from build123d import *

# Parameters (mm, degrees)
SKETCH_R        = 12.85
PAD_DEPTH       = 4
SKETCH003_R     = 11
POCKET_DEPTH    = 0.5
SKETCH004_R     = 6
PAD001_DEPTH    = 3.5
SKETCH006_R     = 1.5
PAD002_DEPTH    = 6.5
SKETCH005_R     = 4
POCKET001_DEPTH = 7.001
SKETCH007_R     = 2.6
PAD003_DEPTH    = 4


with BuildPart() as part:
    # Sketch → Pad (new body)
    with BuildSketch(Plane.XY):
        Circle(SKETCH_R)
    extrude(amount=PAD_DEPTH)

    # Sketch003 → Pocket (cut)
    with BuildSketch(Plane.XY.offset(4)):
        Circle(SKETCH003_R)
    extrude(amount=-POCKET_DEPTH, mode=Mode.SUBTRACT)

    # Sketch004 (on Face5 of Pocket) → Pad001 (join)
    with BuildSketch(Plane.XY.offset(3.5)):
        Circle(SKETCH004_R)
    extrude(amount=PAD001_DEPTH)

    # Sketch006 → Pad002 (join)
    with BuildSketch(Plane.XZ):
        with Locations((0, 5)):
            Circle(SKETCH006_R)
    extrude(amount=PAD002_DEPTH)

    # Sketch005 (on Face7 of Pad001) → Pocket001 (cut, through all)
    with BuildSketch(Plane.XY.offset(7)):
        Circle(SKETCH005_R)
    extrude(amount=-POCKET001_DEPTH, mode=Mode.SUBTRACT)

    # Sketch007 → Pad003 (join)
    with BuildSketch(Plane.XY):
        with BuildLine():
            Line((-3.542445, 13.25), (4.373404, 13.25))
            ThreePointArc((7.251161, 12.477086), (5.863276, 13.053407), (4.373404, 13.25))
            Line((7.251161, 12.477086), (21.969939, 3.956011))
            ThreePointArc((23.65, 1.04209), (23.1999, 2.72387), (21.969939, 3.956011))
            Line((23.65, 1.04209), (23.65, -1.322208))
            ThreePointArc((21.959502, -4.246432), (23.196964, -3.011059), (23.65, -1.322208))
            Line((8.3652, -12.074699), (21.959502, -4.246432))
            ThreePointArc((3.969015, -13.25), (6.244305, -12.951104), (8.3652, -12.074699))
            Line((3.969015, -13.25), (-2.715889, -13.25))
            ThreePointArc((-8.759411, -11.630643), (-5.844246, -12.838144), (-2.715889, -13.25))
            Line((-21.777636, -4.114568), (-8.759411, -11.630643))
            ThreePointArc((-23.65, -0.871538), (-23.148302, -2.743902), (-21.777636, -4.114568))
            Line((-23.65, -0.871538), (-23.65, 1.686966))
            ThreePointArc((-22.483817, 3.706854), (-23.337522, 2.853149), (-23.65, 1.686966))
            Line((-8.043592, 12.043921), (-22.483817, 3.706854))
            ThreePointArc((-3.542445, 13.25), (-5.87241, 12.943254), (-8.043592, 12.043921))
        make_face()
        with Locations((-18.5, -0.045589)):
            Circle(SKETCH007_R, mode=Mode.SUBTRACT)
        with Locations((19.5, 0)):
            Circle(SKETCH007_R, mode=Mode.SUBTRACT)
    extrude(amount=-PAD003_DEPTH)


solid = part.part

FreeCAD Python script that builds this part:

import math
import FreeCAD as App
import Part
import Sketcher

V = App.Vector
Q = App.Units.Quantity

doc = App.newDocument("Part")
body = doc.addObject("PartDesign::Body", "Body")

sketch1 = body.newObject("Sketcher::SketchObject", "Sketch")
sketch1.AttachmentSupport = (doc.getObject("XY_Plane"), [""])
sketch1.MapMode = "FlatFace"
sketch1.addGeometry(Part.Circle(V(0, 0, 0), V(0, 0, 1), 13), False)
sketch1.addConstraint([
    Sketcher.Constraint("Coincident", 0, 3, -1, 1),
    Sketcher.Constraint("Diameter", 0, Q("25.7 mm")),
])
pad1 = body.newObject("PartDesign::Pad", "Pad")
pad1.Profile = sketch1
pad1.Length = 4

sketch2 = body.newObject("Sketcher::SketchObject", "Sketch001")
sketch2.AttachmentSupport = (doc.getObject("XY_Plane"), [""])
sketch2.MapMode = "FlatFace"
sketch2.AttachmentOffset = App.Placement(V(0, 0, 4), App.Rotation())
sketch2.addGeometry(Part.Circle(V(0, 0, 0), V(0, 0, 1), 11), False)
sketch2.addConstraint([
    Sketcher.Constraint("Coincident", 0, 3, -1, 1),
    Sketcher.Constraint("Diameter", 0, Q("22 mm")),
])
pocket1 = body.newObject("PartDesign::Pocket", "Pocket")
pocket1.Profile = sketch2
pocket1.Length = 0.5

sketch3 = body.newObject("Sketcher::SketchObject", "Sketch002")
sketch3.AttachmentSupport = (doc.getObject("XY_Plane"), [""])
sketch3.MapMode = "FlatFace"
sketch3.AttachmentOffset = App.Placement(V(0, 0, 3.5), App.Rotation())
sketch3.addGeometry(Part.Circle(V(0, 0, 0), V(0, 0, 1), 6), False)
sketch3.addConstraint([
    Sketcher.Constraint("Coincident", 0, 3, -1, 1),
    Sketcher.Constraint("Diameter", 0, Q("12 mm")),
])
pad2 = body.newObject("PartDesign::Pad", "Pad001")
pad2.Profile = sketch3
pad2.Length = 3.5

sketch4 = body.newObject("Sketcher::SketchObject", "Sketch003")
sketch4.AttachmentSupport = (doc.getObject("XZ_Plane"), [""])
sketch4.MapMode = "FlatFace"
sketch4.addGeometry(Part.Circle(V(0, 5, 0), V(0, 0, 1), 1.5), False)
sketch4.addConstraint([
    Sketcher.Constraint("PointOnObject", 0, 3, -2),
    Sketcher.Constraint("Diameter", 0, Q("3 mm")),
    Sketcher.Constraint("DistanceY", -1, 1, 0, 3, Q("5 mm")),
])
pad3 = body.newObject("PartDesign::Pad", "Pad002")
pad3.Profile = sketch4
pad3.Length = 6.5

sketch5 = body.newObject("Sketcher::SketchObject", "Sketch004")
sketch5.AttachmentSupport = (doc.getObject("XY_Plane"), [""])
sketch5.MapMode = "FlatFace"
sketch5.AttachmentOffset = App.Placement(V(0, 0, 7), App.Rotation())
sketch5.addGeometry(Part.Circle(V(0, 0, 0), V(0, 0, 1), 4), False)
sketch5.addConstraint([
    Sketcher.Constraint("Coincident", 0, 3, -1, 1),
    Sketcher.Constraint("Diameter", 0, Q("8 mm")),
])
pocket2 = body.newObject("PartDesign::Pocket", "Pocket001")
pocket2.Profile = sketch5
pocket2.Type = "ThroughAll"

sketch6 = body.newObject("Sketcher::SketchObject", "Sketch005")
sketch6.AttachmentSupport = (doc.getObject("XY_Plane"), [""])
sketch6.MapMode = "FlatFace"
sketch6.addGeometry([
    Part.LineSegment(V(4.4, 13.2, 0), V(-3.5, 13.2, 0)),
    Part.ArcOfCircle(Part.Circle(V(-3.5, 4.2, 0), V(0, 0, 1), 9), math.radians(90), math.radians(120)),
    Part.LineSegment(V(-8, 12, 0), V(-22.5, 3.7, 0)),
    Part.ArcOfCircle(Part.Circle(V(-21.3, 1.7, 0), V(0, 0, 1), 2.3), math.radians(120), math.radians(180)),
    Part.LineSegment(V(-23.6, 1.7, 0), V(-23.6, -0.9, 0)),
    Part.ArcOfCircle(Part.Circle(V(-19.9, -0.9, 0), V(0, 0, 1), 3.7), math.radians(180), math.radians(240)),
    Part.LineSegment(V(-21.8, -4.1, 0), V(-8.8, -11.6, 0)),
    Part.ArcOfCircle(Part.Circle(V(-2.7, -1.2, 0), V(0, 0, 1), 12.1), math.radians(-120), math.radians(-90)),
    Part.LineSegment(V(-2.7, -13.2, 0), V(4, -13.2, 0)),
    Part.ArcOfCircle(Part.Circle(V(4, -4.4, 0), V(0, 0, 1), 8.8), math.radians(-90), math.radians(-60)),
    Part.LineSegment(V(8.4, -12.1, 0), V(22, -4.2, 0)),
    Part.ArcOfCircle(Part.Circle(V(20.3, -1.3, 0), V(0, 0, 1), 3.4), math.radians(-60), math.radians(0)),
    Part.LineSegment(V(23.6, -1.3, 0), V(23.6, 1, 0)),
    Part.ArcOfCircle(Part.Circle(V(20.3, 1, 0), V(0, 0, 1), 3.4), math.radians(0), math.radians(60)),
    Part.LineSegment(V(22, 4, 0), V(7.3, 12.5, 0)),
    Part.ArcOfCircle(Part.Circle(V(4.4, 7.5, 0), V(0, 0, 1), 5.7), math.radians(60), math.radians(90)),
    Part.Circle(V(-18.5, 0, 0), V(0, 0, 1), 2.6),
    Part.Circle(V(19.5, 0, 0), V(0, 0, 1), 2.6),
], False)
sketch6.addConstraint([
    Sketcher.Constraint("Tangent", 0, 2, 1, 1),
    Sketcher.Constraint("Tangent", 1, 2, 2, 1),
    Sketcher.Constraint("Tangent", 2, 2, 3, 1),
    Sketcher.Constraint("Tangent", 3, 2, 4, 1),
    Sketcher.Constraint("Tangent", 4, 2, 5, 1),
    Sketcher.Constraint("Tangent", 5, 2, 6, 1),
    Sketcher.Constraint("Tangent", 6, 2, 7, 1),
    Sketcher.Constraint("Tangent", 7, 2, 8, 1),
    Sketcher.Constraint("Tangent", 8, 2, 9, 1),
    Sketcher.Constraint("Tangent", 9, 2, 10, 1),
    Sketcher.Constraint("Tangent", 10, 2, 11, 1),
    Sketcher.Constraint("Tangent", 11, 2, 12, 1),
    Sketcher.Constraint("Tangent", 12, 2, 13, 1),
    Sketcher.Constraint("Tangent", 13, 2, 14, 1),
    Sketcher.Constraint("Tangent", 14, 2, 15, 1),
    Sketcher.Constraint("Tangent", 15, 2, 0, 1),
    Sketcher.Constraint("Horizontal", 0),
    Sketcher.Constraint("Vertical", 4),
    Sketcher.Constraint("Horizontal", 8),
    Sketcher.Constraint("Vertical", 12),
    Sketcher.Constraint("Equal", 16, 17),
    Sketcher.Constraint("PointOnObject", 17, 3, -1),
    Sketcher.Constraint("Diameter", 16, Q("5.2 mm")),
    Sketcher.Constraint("Angle", 2, Q("-150.000002 deg")),
    Sketcher.Constraint("Angle", 6, Q("-29.999998 deg")),
    Sketcher.Constraint("DistanceX", 16, 3, -1, 1, Q("18.5 mm")),
    Sketcher.Constraint("DistanceX", -1, 1, 17, 3, Q("19.5 mm")),
    Sketcher.Constraint("Radius", 1, Q("9.002299 mm")),
    Sketcher.Constraint("DistanceY", -1, 1, 0, 2, Q("13.25 mm")),
    Sketcher.Constraint("DistanceX", 3, 2, -1, 1, Q("23.65 mm")),
    Sketcher.Constraint("DistanceY", 7, 2, -1, 1, Q("13.25 mm")),
    Sketcher.Constraint("DistanceX", -1, 1, 11, 2, Q("23.65 mm")),
    Sketcher.Constraint("Radius", 11, Q("3.374411 mm")),
    Sketcher.Constraint("Radius", 3, Q("2.332366 mm")),
    Sketcher.Constraint("Radius", 5, Q("3.744727 mm")),
    Sketcher.Constraint("Radius", 7, Q("12.087042 mm")),
    Sketcher.Constraint("Radius", 9, Q("8.809566 mm")),
    Sketcher.Constraint("Radius", 13, Q("3.367005 mm")),
    Sketcher.Constraint("Radius", 15, Q("5.743777 mm")),
    Sketcher.Constraint("DistanceY", 9, 3, 10, 2, Q("0.194002 mm")),
    Sketcher.Constraint("DistanceX", 0, 2, 0, 1, Q("7.915849 mm")),
    Sketcher.Constraint("DistanceX", -1, 1, 9, 2, Q("8.3652 mm")),
    Sketcher.Constraint("DistanceY", 9, 3, 3, 3, Q("6.127399 mm")),
    Sketcher.Constraint("DistanceY", 11, 3, 12, 2, Q("2.364298 mm")),
    Sketcher.Constraint("Distance", 6, Q("15.032151 mm")),
    Sketcher.Constraint("DistanceY", 16, 3, -1, 1, Q("0.045589 mm")),
])
pad4 = body.newObject("PartDesign::Pad", "Pad003")
pad4.Profile = sketch6
pad4.Length = 4
pad4.Reversed = True

doc.recompute()
